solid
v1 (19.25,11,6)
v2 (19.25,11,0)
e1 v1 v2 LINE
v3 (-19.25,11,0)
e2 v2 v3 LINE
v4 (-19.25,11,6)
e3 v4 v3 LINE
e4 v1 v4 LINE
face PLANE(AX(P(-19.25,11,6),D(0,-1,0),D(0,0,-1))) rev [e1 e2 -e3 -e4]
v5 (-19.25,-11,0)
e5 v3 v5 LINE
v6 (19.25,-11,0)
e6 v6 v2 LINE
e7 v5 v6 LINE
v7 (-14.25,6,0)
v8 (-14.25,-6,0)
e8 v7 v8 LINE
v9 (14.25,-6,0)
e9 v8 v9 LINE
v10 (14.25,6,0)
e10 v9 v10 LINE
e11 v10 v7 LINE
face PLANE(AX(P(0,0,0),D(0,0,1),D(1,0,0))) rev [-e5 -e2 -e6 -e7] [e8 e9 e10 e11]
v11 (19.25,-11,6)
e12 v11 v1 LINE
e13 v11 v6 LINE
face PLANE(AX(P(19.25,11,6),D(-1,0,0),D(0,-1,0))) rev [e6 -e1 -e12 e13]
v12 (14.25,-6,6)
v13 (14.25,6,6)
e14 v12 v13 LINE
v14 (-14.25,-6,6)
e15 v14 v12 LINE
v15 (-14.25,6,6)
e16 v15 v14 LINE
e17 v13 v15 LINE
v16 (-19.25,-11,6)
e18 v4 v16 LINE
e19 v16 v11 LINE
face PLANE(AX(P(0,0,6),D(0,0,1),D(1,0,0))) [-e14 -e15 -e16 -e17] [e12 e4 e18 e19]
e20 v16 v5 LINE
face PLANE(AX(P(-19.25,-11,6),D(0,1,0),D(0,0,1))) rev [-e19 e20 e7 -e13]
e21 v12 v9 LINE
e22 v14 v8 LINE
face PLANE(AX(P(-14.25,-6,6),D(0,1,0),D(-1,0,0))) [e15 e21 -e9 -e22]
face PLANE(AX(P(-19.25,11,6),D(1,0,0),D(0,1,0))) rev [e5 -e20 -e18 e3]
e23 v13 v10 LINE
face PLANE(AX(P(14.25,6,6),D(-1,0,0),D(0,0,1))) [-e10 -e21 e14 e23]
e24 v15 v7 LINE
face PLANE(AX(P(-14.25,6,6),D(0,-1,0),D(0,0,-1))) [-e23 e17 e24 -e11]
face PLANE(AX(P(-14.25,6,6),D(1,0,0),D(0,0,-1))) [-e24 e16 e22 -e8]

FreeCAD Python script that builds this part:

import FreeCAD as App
import Part
import Sketcher


def add_polygon(sketch, points):
    """Adds a closed chain of lines whose ends are joined by coincident constraints."""
    first, n = sketch.GeometryCount, len(points)
    for a, b in zip(points, points[1:] + points[:1]):
        sketch.addGeometry(Part.LineSegment(App.Vector(*a, 0), App.Vector(*b, 0)), False)
    for i in range(n):
        sketch.addConstraint(Sketcher.Constraint("Coincident", first + i, 2, first + (i + 1) % n, 1))

doc = App.newDocument("Part")
body = doc.addObject("PartDesign::Body", "Body")

# Sketch on XY plane
sketch1 = body.newObject("Sketcher::SketchObject", "Sketch")
sketch1.AttachmentSupport = (doc.getObject("XY_Plane"), [""])
sketch1.MapMode = "FlatFace"
add_polygon(sketch1, [(-19.25, 11), (-19.25, -11), (19.25, -11), (19.25, 11)])  # lines 0-3
add_polygon(sketch1, [(14.25, -6), (-14.25, -6), (-14.25, 6), (14.25, 6)])  # lines 4-7
sketch1.addConstraint(Sketcher.Constraint("Vertical", 0))
sketch1.addConstraint(Sketcher.Constraint("Horizontal", 1))
sketch1.addConstraint(Sketcher.Constraint("Vertical", 2))
sketch1.addConstraint(Sketcher.Constraint("Horizontal", 3))
sketch1.addConstraint(Sketcher.Constraint("Horizontal", 4))
sketch1.addConstraint(Sketcher.Constraint("Vertical", 5))
sketch1.addConstraint(Sketcher.Constraint("Horizontal", 6))
sketch1.addConstraint(Sketcher.Constraint("Vertical", 7))
sketch1.addConstraint(Sketcher.Constraint("Symmetric", 0, 2, 2, 2, -1, 1))
sketch1.addConstraint(Sketcher.Constraint("Symmetric", 4, 2, 6, 2, -1, 1))
sketch1.addConstraint(Sketcher.Constraint("DistanceY", 0, 2, 0, 1, 22.0))
sketch1.addConstraint(Sketcher.Constraint("DistanceY", 5, 1, 5, 2, 12.0))
sketch1.addConstraint(Sketcher.Constraint("DistanceX", 1, 1, 1, 2, 38.5))
sketch1.addConstraint(Sketcher.Constraint("DistanceX", 4, 2, 4, 1, 28.5))
pad1 = body.newObject("PartDesign::Pad", "Pad")
pad1.Profile = sketch1
pad1.Length = 6

doc.recompute()
